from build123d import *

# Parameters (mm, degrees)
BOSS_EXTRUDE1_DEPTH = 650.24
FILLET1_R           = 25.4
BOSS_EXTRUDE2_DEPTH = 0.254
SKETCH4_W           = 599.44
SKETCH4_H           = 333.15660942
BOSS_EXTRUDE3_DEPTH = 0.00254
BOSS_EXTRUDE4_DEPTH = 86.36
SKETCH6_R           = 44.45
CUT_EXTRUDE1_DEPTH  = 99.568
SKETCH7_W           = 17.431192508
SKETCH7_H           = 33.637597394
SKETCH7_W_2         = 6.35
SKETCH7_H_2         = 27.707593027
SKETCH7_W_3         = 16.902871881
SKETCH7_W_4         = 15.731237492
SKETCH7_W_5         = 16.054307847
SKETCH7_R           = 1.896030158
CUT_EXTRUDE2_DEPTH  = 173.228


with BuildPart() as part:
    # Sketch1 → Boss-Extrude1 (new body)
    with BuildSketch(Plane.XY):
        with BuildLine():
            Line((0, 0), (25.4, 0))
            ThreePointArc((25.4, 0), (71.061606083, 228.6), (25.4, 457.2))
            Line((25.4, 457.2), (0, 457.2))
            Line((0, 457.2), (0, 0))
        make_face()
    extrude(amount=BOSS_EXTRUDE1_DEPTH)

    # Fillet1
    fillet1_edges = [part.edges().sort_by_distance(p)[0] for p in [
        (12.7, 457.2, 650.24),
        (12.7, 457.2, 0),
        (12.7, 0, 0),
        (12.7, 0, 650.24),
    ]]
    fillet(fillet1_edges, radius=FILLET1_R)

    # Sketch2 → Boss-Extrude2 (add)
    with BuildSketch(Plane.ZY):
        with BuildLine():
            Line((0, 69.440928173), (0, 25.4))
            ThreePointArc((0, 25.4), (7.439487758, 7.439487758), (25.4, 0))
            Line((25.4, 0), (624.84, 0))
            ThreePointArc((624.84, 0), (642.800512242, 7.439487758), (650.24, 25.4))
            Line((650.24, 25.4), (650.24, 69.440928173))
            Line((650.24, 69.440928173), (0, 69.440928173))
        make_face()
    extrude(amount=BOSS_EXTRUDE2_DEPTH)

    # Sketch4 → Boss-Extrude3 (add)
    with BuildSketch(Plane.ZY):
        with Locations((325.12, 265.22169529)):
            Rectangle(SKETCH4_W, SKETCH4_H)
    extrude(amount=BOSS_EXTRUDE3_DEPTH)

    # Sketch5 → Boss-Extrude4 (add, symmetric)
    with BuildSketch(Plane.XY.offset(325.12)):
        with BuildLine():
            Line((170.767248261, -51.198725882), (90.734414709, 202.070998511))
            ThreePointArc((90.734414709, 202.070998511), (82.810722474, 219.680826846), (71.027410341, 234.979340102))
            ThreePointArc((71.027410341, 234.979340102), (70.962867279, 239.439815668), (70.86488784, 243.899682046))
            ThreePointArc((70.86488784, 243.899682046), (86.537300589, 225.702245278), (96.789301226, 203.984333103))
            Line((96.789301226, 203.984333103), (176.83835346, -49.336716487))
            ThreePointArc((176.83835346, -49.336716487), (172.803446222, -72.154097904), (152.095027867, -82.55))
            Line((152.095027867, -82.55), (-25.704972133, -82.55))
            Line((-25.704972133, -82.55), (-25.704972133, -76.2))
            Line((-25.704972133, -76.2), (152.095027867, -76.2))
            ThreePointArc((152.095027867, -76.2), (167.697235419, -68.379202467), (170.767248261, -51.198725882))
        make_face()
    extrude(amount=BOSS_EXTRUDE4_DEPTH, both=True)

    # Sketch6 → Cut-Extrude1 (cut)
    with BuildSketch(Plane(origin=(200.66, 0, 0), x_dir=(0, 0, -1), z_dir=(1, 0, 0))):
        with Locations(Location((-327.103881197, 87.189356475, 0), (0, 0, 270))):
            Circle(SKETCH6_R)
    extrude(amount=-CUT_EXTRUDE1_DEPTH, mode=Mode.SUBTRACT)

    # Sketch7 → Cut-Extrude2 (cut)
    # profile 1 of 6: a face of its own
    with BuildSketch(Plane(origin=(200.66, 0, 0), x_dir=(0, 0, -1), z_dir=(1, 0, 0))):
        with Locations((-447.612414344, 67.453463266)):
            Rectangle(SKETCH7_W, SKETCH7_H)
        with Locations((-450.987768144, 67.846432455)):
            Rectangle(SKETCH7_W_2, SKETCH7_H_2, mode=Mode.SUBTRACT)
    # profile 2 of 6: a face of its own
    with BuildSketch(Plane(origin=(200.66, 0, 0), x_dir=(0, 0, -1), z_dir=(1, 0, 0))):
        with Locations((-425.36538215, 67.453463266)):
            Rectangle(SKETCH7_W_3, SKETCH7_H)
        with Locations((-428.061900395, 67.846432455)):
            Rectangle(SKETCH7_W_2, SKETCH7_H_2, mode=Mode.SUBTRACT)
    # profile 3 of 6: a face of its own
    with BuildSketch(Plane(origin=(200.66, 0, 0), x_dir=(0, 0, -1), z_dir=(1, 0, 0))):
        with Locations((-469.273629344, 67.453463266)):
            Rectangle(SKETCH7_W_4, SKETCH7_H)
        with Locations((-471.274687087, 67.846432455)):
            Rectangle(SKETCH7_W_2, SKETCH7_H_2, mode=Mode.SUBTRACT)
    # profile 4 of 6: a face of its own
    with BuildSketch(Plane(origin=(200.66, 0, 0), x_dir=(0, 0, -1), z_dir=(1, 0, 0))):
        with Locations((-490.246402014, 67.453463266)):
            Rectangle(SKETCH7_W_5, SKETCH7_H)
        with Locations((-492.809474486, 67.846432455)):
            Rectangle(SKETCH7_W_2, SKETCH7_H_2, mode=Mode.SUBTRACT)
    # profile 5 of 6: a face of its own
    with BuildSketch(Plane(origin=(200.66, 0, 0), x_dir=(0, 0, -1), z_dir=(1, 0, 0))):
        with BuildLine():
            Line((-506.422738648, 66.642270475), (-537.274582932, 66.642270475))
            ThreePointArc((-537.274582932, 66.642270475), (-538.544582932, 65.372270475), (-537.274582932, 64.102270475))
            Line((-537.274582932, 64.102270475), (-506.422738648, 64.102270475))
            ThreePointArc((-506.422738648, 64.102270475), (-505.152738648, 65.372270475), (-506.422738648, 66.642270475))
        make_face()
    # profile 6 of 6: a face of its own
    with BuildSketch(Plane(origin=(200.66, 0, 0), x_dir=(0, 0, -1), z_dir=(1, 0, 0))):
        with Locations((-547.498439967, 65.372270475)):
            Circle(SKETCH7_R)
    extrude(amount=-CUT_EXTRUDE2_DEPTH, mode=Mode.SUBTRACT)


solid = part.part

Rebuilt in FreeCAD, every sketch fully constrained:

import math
import FreeCAD as App
import Part
import Sketcher
Q = App.Units.Quantity


def edges_at(feature, points):
    """Names of the edges that pass closest to the given points."""
    edges = feature.Shape.Edges
    near = lambda p: min(range(len(edges)), key=lambda i: edges[i].distToShape(Part.Vertex(*p))[0])
    return sorted({f"Edge{near(p) + 1}" for p in points})

doc = App.newDocument("Part")
params = doc.addObject("Spreadsheet::Sheet", "Params")
for row, (alias, value) in enumerate([
    ("sketch1_width", "1 in"),
    ("sketch1_height", "18 in"),
    ("pad1_length", "25.6 in"),
    ("fillet_radius", "1 in"),
    ("sketch2_radius", "1 in"),
    ("sketch2_height", "23.6 in"),
    ("pad2_length", "0.01 in"),
    ("sketch3_height", "23.6 in"),
    ("pad3_length", "0.0001 in"),
    ("sketch4_width", "7 in"),
    ("sketch4_height", "0.25 in"),
    ("pad4_length", "6.8 in"),
    ("sketch5_diameter", "3.5 in"),
    ("pocket1_length", "3.92 in"),
    ("sketch6_radius", "0.05 in"),
    ("sketch6_height", "0.25 in"),
    ("pocket2_length", "6.82 in"),
], start=1):
    params.set(f"A{row}", alias)
    params.set(f"B{row}", "=" + value)
    params.setAlias(f"B{row}", alias)

body = doc.addObject("PartDesign::Body", "Body")

# Sketch on XY plane
sketch1 = body.newObject("Sketcher::SketchObject", "Sketch")
sketch1.AttachmentSupport = (doc.getObject("XY_Plane"), [""])
sketch1.MapMode = "FlatFace"
sketch1.addGeometry(Part.LineSegment(App.Vector(0, 0, 0), App.Vector(25.4, 0, 0)), False)
sketch1.addGeometry(Part.ArcOfCircle(Part.Circle(App.Vector(-524.000054, 228.6, 0), App.Vector(0, 0, 1), 595.06166), math.radians(-22.591718), math.radians(22.591718)), False)
sketch1.addGeometry(Part.LineSegment(App.Vector(25.4, 457.2, 0), App.Vector(0, 457.2, 0)), False)
sketch1.addGeometry(Part.LineSegment(App.Vector(0, 457.2, 0), App.Vector(0, 0, 0)), False)
sketch1.addConstraint(Sketcher.Constraint("Coincident", 0, 2, 1, 1))
sketch1.addConstraint(Sketcher.Constraint("Coincident", 1, 2, 2, 1))
sketch1.addConstraint(Sketcher.Constraint("Coincident", 2, 2, 3, 1))
sketch1.addConstraint(Sketcher.Constraint("Coincident", 3, 2, 0, 1))
sketch1.addConstraint(Sketcher.Constraint("Horizontal", 0))
sketch1.addConstraint(Sketcher.Constraint("Horizontal", 2))
sketch1.addConstraint(Sketcher.Constraint("Vertical", 3))
sketch1.addConstraint(Sketcher.Constraint("Coincident", 3, 2, -1, 1))
sketch1.addConstraint(Sketcher.Constraint("Vertical", 0, 2, 1, 2))
sketch1.addConstraint(Sketcher.Constraint("DistanceX", 0, 1, 0, 2, Q("1 in")))
sketch1.addConstraint(Sketcher.Constraint("DistanceY", 3, 2, 3, 1, Q("18 in")))
sketch1.addConstraint(Sketcher.Constraint("Radius", 1, 595.06166))
sketch1.setExpression("Constraints[9]", "Params.sketch1_width")
sketch1.setExpression("Constraints[10]", "Params.sketch1_height")
pad1 = body.newObject("PartDesign::Pad", "Pad")
pad1.Profile = sketch1
pad1.setExpression("Length", "Params.pad1_length")
doc.recompute()

fillet = body.newObject("PartDesign::Fillet", "Fillet")
fillet.Base = (pad1, edges_at(pad1, [
    (12.7, 457.2, 650.24),
    (12.7, 457.2, 0),
    (12.7, 0, 0),
    (12.7, 0, 650.24),
]))
fillet.setExpression("Radius", "Params.fillet_radius")

# Sketch on YZ plane
sketch2 = body.newObject("Sketcher::SketchObject", "Sketch001")
sketch2.AttachmentSupport = (doc.getObject("YZ_Plane"), [""])
sketch2.MapMode = "FlatFace"
sketch2.addGeometry(Part.LineSegment(App.Vector(69, 0, 0), App.Vector(25, 0, 0)), False)
sketch2.addGeometry(Part.ArcOfCircle(Part.Circle(App.Vector(25, 25, 0), App.Vector(0, 0, 1), 25), math.radians(180), math.radians(270)), False)
sketch2.addGeometry(Part.LineSegment(App.Vector(0, 25, 0), App.Vector(0, 625, 0)), False)
sketch2.addGeometry(Part.ArcOfCircle(Part.Circle(App.Vector(25, 625, 0), App.Vector(0, 0, 1), 25), math.radians(90), math.radians(180)), False)
sketch2.addGeometry(Part.LineSegment(App.Vector(25, 650, 0), App.Vector(69, 650, 0)), False)
sketch2.addGeometry(Part.LineSegment(App.Vector(69, 650, 0), App.Vector(69, 0, 0)), False)
sketch2.addConstraint(Sketcher.Constraint("Tangent", 0, 2, 1, 2))
sketch2.addConstraint(Sketcher.Constraint("Tangent", 1, 1, 2, 1))
sketch2.addConstraint(Sketcher.Constraint("Tangent", 2, 2, 3, 2))
sketch2.addConstraint(Sketcher.Constraint("Tangent", 3, 1, 4, 1))
sketch2.addConstraint(Sketcher.Constraint("Coincident", 4, 2, 5, 1))
sketch2.addConstraint(Sketcher.Constraint("Coincident", 5, 2, 0, 1))
sketch2.addConstraint(Sketcher.Constraint("Horizontal", 0))
sketch2.addConstraint(Sketcher.Constraint("Vertical", 2))
sketch2.addConstraint(Sketcher.Constraint("Horizontal", 4))
sketch2.addConstraint(Sketcher.Constraint("Vertical", 5))
sketch2.addConstraint(Sketcher.Constraint("Equal", 1, 3))
sketch2.addConstraint(Sketcher.Constraint("PointOnObject", 0, 2, -1))
sketch2.addConstraint(Sketcher.Constraint("PointOnObject", 1, 1, -2))
sketch2.addConstraint(Sketcher.Constraint("Radius", 1, Q("1 in")))
sketch2.addConstraint(Sketcher.Constraint("DistanceY", 2, 1, 2, 2, Q("23.6 in")))
sketch2.addConstraint(Sketcher.Constraint("DistanceX", 0, 2, 0, 1, 44.040928))
sketch2.setExpression("Constraints[13]", "Params.sketch2_radius")
sketch2.setExpression("Constraints[14]", "Params.sketch2_height")
pad2 = body.newObject("PartDesign::Pad", "Pad001")
pad2.Profile = sketch2
pad2.setExpression("Length", "Params.pad2_length")
pad2.Reversed = True

# Sketch on YZ plane
sketch3 = body.newObject("Sketcher::SketchObject", "Sketch002")
sketch3.AttachmentSupport = (doc.getObject("YZ_Plane"), [""])
sketch3.MapMode = "FlatFace"
sketch3.addGeometry(Part.LineSegment(App.Vector(432, 25, 0), App.Vector(99, 25, 0)), False)
sketch3.addGeometry(Part.LineSegment(App.Vector(99, 25, 0), App.Vector(99, 625, 0)), False)
sketch3.addGeometry(Part.LineSegment(App.Vector(99, 625, 0), App.Vector(432, 625, 0)), False)
sketch3.addGeometry(Part.LineSegment(App.Vector(432, 625, 0), App.Vector(432, 25, 0)), False)
sketch3.addConstraint(Sketcher.Constraint("Coincident", 0, 2, 1, 1))
sketch3.addConstraint(Sketcher.Constraint("Coincident", 1, 2, 2, 1))
sketch3.addConstraint(Sketcher.Constraint("Coincident", 2, 2, 3, 1))
sketch3.addConstraint(Sketcher.Constraint("Coincident", 3, 2, 0, 1))
sketch3.addConstraint(Sketcher.Constraint("Horizontal", 0))
sketch3.addConstraint(Sketcher.Constraint("Vertical", 1))
sketch3.addConstraint(Sketcher.Constraint("Horizontal", 2))
sketch3.addConstraint(Sketcher.Constraint("Vertical", 3))
sketch3.addConstraint(Sketcher.Constraint("DistanceY", 1, 1, 1, 2, Q("23.6 in")))
sketch3.addConstraint(Sketcher.Constraint("DistanceY", -1, 1, 0, 2, Q("1 in")))
sketch3.addConstraint(Sketcher.Constraint("DistanceX", -1, 1, 2, 2, Q("17 in")))
sketch3.addConstraint(Sketcher.Constraint("DistanceX", 0, 2, 0, 1, 333.156609))
sketch3.setExpression("Constraints[8]", "Params.sketch3_height")
pad3 = body.newObject("PartDesign::Pad", "Pad002")
pad3.Profile = sketch3
pad3.setExpression("Length", "Params.pad3_length")
pad3.Reversed = True

# Sketch on XY plane
sketch4 = body.newObject("Sketcher::SketchObject", "Sketch003")
sketch4.AttachmentSupport = (doc.getObject("XY_Plane"), [""])
sketch4.MapMode = "FlatFace"
sketch4.AttachmentOffset = App.Placement(App.Vector(0, 0, 12.8 * 25.4), App.Rotation())
sketch4.addGeometry(Part.LineSegment(App.Vector(91, 202, 0), App.Vector(171, -51, 0)), False)
sketch4.addGeometry(Part.ArcOfCircle(Part.Circle(App.Vector(152, -57, 0), App.Vector(0, 0, 1), 19), math.radians(-90), math.radians(16)), False)
sketch4.addGeometry(Part.LineSegment(App.Vector(152, -76, 0), App.Vector(-26, -76, 0)), False)
sketch4.addGeometry(Part.LineSegment(App.Vector(-26, -76, 0), App.Vector(-26, -83, 0)), False)
sketch4.addGeometry(Part.LineSegment(App.Vector(-26, -83, 0), App.Vector(152, -83, 0)), False)
sketch4.addGeometry(Part.ArcOfCircle(Part.Circle(App.Vector(152, -57, 0), App.Vector(0, 0, 1), 26), math.radians(-90), math.radians(17)), False)
sketch4.addGeometry(Part.LineSegment(App.Vector(177, -49, 0), App.Vector(97, 204, 0)), False)
sketch4.addGeometry(Part.ArcOfCircle(Part.Circle(App.Vector(12, 177, 0), App.Vector(0, 0, 1), 89), math.radians(18), math.radians(48)), False)
sketch4.addGeometry(Part.ArcOfCircle(Part.Circle(App.Vector(-524, 229, 0), App.Vector(0, 0, 1), 595), math.radians(0.61), math.radians(1.47)), False)
sketch4.addGeometry(Part.ArcOfCircle(Part.Circle(App.Vector(12, 177, 0), App.Vector(0, 0, 1), 83), math.radians(18), math.radians(44)), False)
sketch4.addConstraint(Sketcher.Constraint("Coincident", 0, 2, 1, 2))
sketch4.addConstraint(Sketcher.Constraint("Tangent", 1, 1, 2, 1))
sketch4.addConstraint(Sketcher.Constraint("Coincident", 2, 2, 3, 1))
sketch4.addConstraint(Sketcher.Constraint("Coincident", 3, 2, 4, 1))
sketch4.addConstraint(Sketcher.Constraint("Tangent", 4, 2, 5, 1))
sketch4.addConstraint(Sketcher.Constraint("Coincident", 5, 2, 6, 1))
sketch4.addConstraint(Sketcher.Constraint("Tangent", 6, 2, 7, 1))
sketch4.addConstraint(Sketcher.Constraint("Coincident", 7, 2, 8, 2))
sketch4.addConstraint(Sketcher.Constraint("Coincident", 8, 1, 9, 2))
sketch4.addConstraint(Sketcher.Constraint("Tangent", 9, 1, 0, 1))
sketch4.addConstraint(Sketcher.Constraint("Horizontal", 2))
sketch4.addConstraint(Sketcher.Constraint("Vertical", 3))
sketch4.addConstraint(Sketcher.Constraint("Horizontal", 4))
sketch4.addConstraint(Sketcher.Constraint("Coincident", 5, 3, 1, 3))
sketch4.addConstraint(Sketcher.Constraint("Coincident", 9, 3, 7, 3))
sketch4.addConstraint(Sketcher.Constraint("Parallel", 0, 6))
sketch4.addConstraint(Sketcher.Constraint("DistanceX", 2, 2, 2, 1, Q("7 in")))
sketch4.addConstraint(Sketcher.Constraint("DistanceY", -1, 1, 8, 3, Q("9 in")))
sketch4.addConstraint(Sketcher.Constraint("DistanceY", 1, 1, -1, 1, Q("3 in")))
sketch4.addConstraint(Sketcher.Constraint("DistanceY", 3, 2, 3, 1, Q("0.25 in")))
sketch4.addConstraint(Sketcher.Constraint("Radius", 8, 595.061662))
sketch4.addConstraint(Sketcher.Constraint("Radius", 1, 19.473318))
sketch4.addConstraint(Sketcher.Constraint("Radius", 7, 89.237493))
sketch4.addConstraint(Sketcher.Constraint("Radius", 9, 82.887493))
sketch4.addConstraint(Sketcher.Constraint("DistanceX", -1, 1, 6, 2, 96.789301))
sketch4.addConstraint(Sketcher.Constraint("DistanceY", -1, 1, 9, 1, 202.070999))
sketch4.addConstraint(Sketcher.Constraint("Distance", 0, 265.61402))
sketch4.addConstraint(Sketcher.Constraint("DistanceX", -1, 1, 7, 3, 11.699082))
sketch4.addConstraint(Sketcher.Constraint("DistanceX", -1, 1, 8, 1, 71.02741))
sketch4.setExpression("Constraints[16]", "Params.sketch4_width")
sketch4.setExpression("Constraints[19]", "Params.sketch4_height")
pad4 = body.newObject("PartDesign::Pad", "Pad003")
pad4.Profile = sketch4
pad4.setExpression("Length", "Params.pad4_length")
pad4.Midplane = True

# Sketch on YZ plane
sketch5 = body.newObject("Sketcher::SketchObject", "Sketch004")
sketch5.AttachmentSupport = (doc.getObject("YZ_Plane"), [""])
sketch5.MapMode = "FlatFace"
sketch5.AttachmentOffset = App.Placement(App.Vector(0, 0, 7.9 * 25.4), App.Rotation())
sketch5.addGeometry(Part.Circle(App.Vector(87, 327, 0), App.Vector(0, 0, 1), 44), False)
sketch5.addConstraint(Sketcher.Constraint("Diameter", 0, Q("3.5 in")))
sketch5.addConstraint(Sketcher.Constraint("DistanceY", -1, 1, 0, 3, 327.103881))
sketch5.addConstraint(Sketcher.Constraint("DistanceX", -1, 1, 0, 3, 87.189356))
sketch5.setExpression("Constraints[0]", "Params.sketch5_diameter")
pocket1 = body.newObject("PartDesign::Pocket", "Pocket")
pocket1.Profile = sketch5
pocket1.setExpression("Length", "Params.pocket1_length")

# Sketch on YZ plane
sketch6 = body.newObject("Sketcher::SketchObject", "Sketch005")
sketch6.AttachmentSupport = (doc.getObject("YZ_Plane"), [""])
sketch6.MapMode = "FlatFace"
sketch6.AttachmentOffset = App.Placement(App.Vector(0, 0, 7.9 * 25.4), App.Rotation())
sketch6.addGeometry(Part.LineSegment(App.Vector(84.3, 456.3, 0), App.Vector(50.6, 456.3, 0)), False)
sketch6.addGeometry(Part.LineSegment(App.Vector(50.6, 456.3, 0), App.Vector(50.6, 438.9, 0)), False)
sketch6.addGeometry(Part.LineSegment(App.Vector(50.6, 438.9, 0), App.Vector(84.3, 438.9, 0)), False)
sketch6.addGeometry(Part.LineSegment(App.Vector(84.3, 438.9, 0), App.Vector(84.3, 456.3, 0)), False)
sketch6.addGeometry(Part.LineSegment(App.Vector(54, 447.8, 0), App.Vector(54, 454.2, 0)), False)
sketch6.addGeometry(Part.LineSegment(App.Vector(54, 454.2, 0), App.Vector(81.7, 454.2, 0)), False)
sketch6.addGeometry(Part.LineSegment(App.Vector(81.7, 454.2, 0), App.Vector(81.7, 447.8, 0)), False)
sketch6.addGeometry(Part.LineSegment(App.Vector(81.7, 447.8, 0), App.Vector(54, 447.8, 0)), False)
sketch6.addGeometry(Part.LineSegment(App.Vector(84.3, 433.8, 0), App.Vector(50.6, 433.8, 0)), False)
sketch6.addGeometry(Part.LineSegment(App.Vector(50.6, 433.8, 0), App.Vector(50.6, 416.9, 0)), False)
sketch6.addGeometry(Part.LineSegment(App.Vector(50.6, 416.9, 0), App.Vector(84.3, 416.9, 0)), False)
sketch6.addGeometry(Part.LineSegment(App.Vector(84.3, 416.9, 0), App.Vector(84.3, 433.8, 0)), False)
sketch6.addGeometry(Part.LineSegment(App.Vector(54, 424.9, 0), App.Vector(54, 431.2, 0)), False)
sketch6.addGeometry(Part.LineSegment(App.Vector(54, 431.2, 0), App.Vector(81.7, 431.2, 0)), False)
sketch6.addGeometry(Part.LineSegment(App.Vector(81.7, 431.2, 0), App.Vector(81.7, 424.9, 0)), False)
sketch6.addGeometry(Part.LineSegment(App.Vector(81.7, 424.9, 0), App.Vector(54, 424.9, 0)), False)
sketch6.addGeometry(Part.LineSegment(App.Vector(84.3, 477.1, 0), App.Vector(50.6, 477.1, 0)), False)
sketch6.addGeometry(Part.LineSegment(App.Vector(50.6, 477.1, 0), App.Vector(50.6, 461.4, 0)), False)
sketch6.addGeometry(Part.LineSegment(App.Vector(50.6, 461.4, 0), App.Vector(84.3, 461.4, 0)), False)
sketch6.addGeometry(Part.LineSegment(App.Vector(84.3, 461.4, 0), App.Vector(84.3, 477.1, 0)), False)
sketch6.addGeometry(Part.LineSegment(App.Vector(54, 468.1, 0), App.Vector(54, 474.4, 0)), False)
sketch6.addGeometry(Part.LineSegment(App.Vector(54, 474.4, 0), App.Vector(81.7, 474.4, 0)), False)
sketch6.addGeometry(Part.LineSegment(App.Vector(81.7, 474.4, 0), App.Vector(81.7, 468.1, 0)), False)
sketch6.addGeometry(Part.LineSegment(App.Vector(81.7, 468.1, 0), App.Vector(54, 468.1, 0)), False)
sketch6.addGeometry(Part.LineSegment(App.Vector(84.3, 498.3, 0), App.Vector(50.6, 498.3, 0)), False)
sketch6.addGeometry(Part.LineSegment(App.Vector(50.6, 498.3, 0), App.Vector(50.6, 482.2, 0)), False)
sketch6.addGeometry(Part.LineSegment(App.Vector(50.6, 482.2, 0), App.Vector(84.3, 482.2, 0)), False)
sketch6.addGeometry(Part.LineSegment(App.Vector(84.3, 482.2, 0), App.Vector(84.3, 498.3, 0)), False)
sketch6.addGeometry(Part.LineSegment(App.Vector(54, 489.6, 0), App.Vector(54, 496, 0)), False)
sketch6.addGeometry(Part.LineSegment(App.Vector(54, 496, 0), App.Vector(81.7, 496, 0)), False)
sketch6.addGeometry(Part.LineSegment(App.Vector(81.7, 496, 0), App.Vector(81.7, 489.6, 0)), False)
sketch6.addGeometry(Part.LineSegment(App.Vector(81.7, 489.6, 0), App.Vector(54, 489.6, 0)), False)
sketch6.addGeometry(Part.LineSegment(App.Vector(66.6, 506.4, 0), App.Vector(66.6, 537.3, 0)), False)
sketch6.addGeometry(Part.ArcOfCircle(Part.Circle(App.Vector(65.4, 537.3, 0), App.Vector(0, 0, 1), 1.3), math.radians(0), math.radians(180)), False)
sketch6.addGeometry(Part.LineSegment(App.Vector(64.1, 537.3, 0), App.Vector(64.1, 506.4, 0)), False)
sketch6.addGeometry(Part.ArcOfCircle(Part.Circle(App.Vector(65.4, 506.4, 0), App.Vector(0, 0, 1), 1.3), math.radians(180), math.radians(360)), False)
sketch6.addGeometry(Part.Circle(App.Vector(65.4, 547.5, 0), App.Vector(0, 0, 1), 1.9), False)
sketch6.addConstraint(Sketcher.Constraint("Coincident", 0, 2, 1, 1))
sketch6.addConstraint(Sketcher.Constraint("Coincident", 1, 2, 2, 1))
sketch6.addConstraint(Sketcher.Constraint("Coincident", 2, 2, 3, 1))
sketch6.addConstraint(Sketcher.Constraint("Coincident", 3, 2, 0, 1))
sketch6.addConstraint(Sketcher.Constraint("Coincident", 4, 2, 5, 1))
sketch6.addConstraint(Sketcher.Constraint("Coincident", 5, 2, 6, 1))
sketch6.addConstraint(Sketcher.Constraint("Coincident", 6, 2, 7, 1))
sketch6.addConstraint(Sketcher.Constraint("Coincident", 7, 2, 4, 1))
sketch6.addConstraint(Sketcher.Constraint("Coincident", 8, 2, 9, 1))
sketch6.addConstraint(Sketcher.Constraint("Coincident", 9, 2, 10, 1))
sketch6.addConstraint(Sketcher.Constraint("Coincident", 10, 2, 11, 1))
sketch6.addConstraint(Sketcher.Constraint("Coincident", 11, 2, 8, 1))
sketch6.addConstraint(Sketcher.Constraint("Coincident", 12, 2, 13, 1))
sketch6.addConstraint(Sketcher.Constraint("Coincident", 13, 2, 14, 1))
sketch6.addConstraint(Sketcher.Constraint("Coincident", 14, 2, 15, 1))
sketch6.addConstraint(Sketcher.Constraint("Coincident", 15, 2, 12, 1))
sketch6.addConstraint(Sketcher.Constraint("Coincident", 16, 2, 17, 1))
sketch6.addConstraint(Sketcher.Constraint("Coincident", 17, 2, 18, 1))
sketch6.addConstraint(Sketcher.Constraint("Coincident", 18, 2, 19, 1))
sketch6.addConstraint(Sketcher.Constraint("Coincident", 19, 2, 16, 1))
sketch6.addConstraint(Sketcher.Constraint("Coincident", 20, 2, 21, 1))
sketch6.addConstraint(Sketcher.Constraint("Coincident", 21, 2, 22, 1))
sketch6.addConstraint(Sketcher.Constraint("Coincident", 22, 2, 23, 1))
sketch6.addConstraint(Sketcher.Constraint("Coincident", 23, 2, 20, 1))
sketch6.addConstraint(Sketcher.Constraint("Coincident", 24, 2, 25, 1))
sketch6.addConstraint(Sketcher.Constraint("Coincident", 25, 2, 26, 1))
sketch6.addConstraint(Sketcher.Constraint("Coincident", 26, 2, 27, 1))
sketch6.addConstraint(Sketcher.Constraint("Coincident", 27, 2, 24, 1))
sketch6.addConstraint(Sketcher.Constraint("Coincident", 28, 2, 29, 1))
sketch6.addConstraint(Sketcher.Constraint("Coincident", 29, 2, 30, 1))
sketch6.addConstraint(Sketcher.Constraint("Coincident", 30, 2, 31, 1))
sketch6.addConstraint(Sketcher.Constraint("Coincident", 31, 2, 28, 1))
sketch6.addConstraint(Sketcher.Constraint("Tangent", 32, 2, 33, 1))
sketch6.addConstraint(Sketcher.Constraint("Tangent", 33, 2, 34, 1))
sketch6.addConstraint(Sketcher.Constraint("Tangent", 34, 2, 35, 1))
sketch6.addConstraint(Sketcher.Constraint("Tangent", 35, 2, 32, 1))
sketch6.addConstraint(Sketcher.Constraint("Horizontal", 0))
sketch6.addConstraint(Sketcher.Constraint("Vertical", 1))
sketch6.addConstraint(Sketcher.Constraint("Horizontal", 2))
sketch6.addConstraint(Sketcher.Constraint("Vertical", 3))
sketch6.addConstraint(Sketcher.Constraint("Vertical", 4))
sketch6.addConstraint(Sketcher.Constraint("Horizontal", 5))
sketch6.addConstraint(Sketcher.Constraint("Vertical", 6))
sketch6.addConstraint(Sketcher.Constraint("Horizontal", 7))
sketch6.addConstraint(Sketcher.Constraint("Horizontal", 8))
sketch6.addConstraint(Sketcher.Constraint("Vertical", 9))
sketch6.addConstraint(Sketcher.Constraint("Horizontal", 10))
sketch6.addConstraint(Sketcher.Constraint("Vertical", 11))
sketch6.addConstraint(Sketcher.Constraint("Vertical", 12))
sketch6.addConstraint(Sketcher.Constraint("Horizontal", 13))
sketch6.addConstraint(Sketcher.Constraint("Vertical", 14))
sketch6.addConstraint(Sketcher.Constraint("Horizontal", 15))
sketch6.addConstraint(Sketcher.Constraint("Horizontal", 16))
sketch6.addConstraint(Sketcher.Constraint("Vertical", 17))
sketch6.addConstraint(Sketcher.Constraint("Horizontal", 18))
sketch6.addConstraint(Sketcher.Constraint("Vertical", 19))
sketch6.addConstraint(Sketcher.Constraint("Vertical", 20))
sketch6.addConstraint(Sketcher.Constraint("Horizontal", 21))
sketch6.addConstraint(Sketcher.Constraint("Vertical", 22))
sketch6.addConstraint(Sketcher.Constraint("Horizontal", 23))
sketch6.addConstraint(Sketcher.Constraint("Horizontal", 24))
sketch6.addConstraint(Sketcher.Constraint("Vertical", 25))
sketch6.addConstraint(Sketcher.Constraint("Horizontal", 26))
sketch6.addConstraint(Sketcher.Constraint("Vertical", 27))
sketch6.addConstraint(Sketcher.Constraint("Vertical", 28))
sketch6.addConstraint(Sketcher.Constraint("Horizontal", 29))
sketch6.addConstraint(Sketcher.Constraint("Vertical", 30))
sketch6.addConstraint(Sketcher.Constraint("Horizontal", 31))
sketch6.addConstraint(Sketcher.Constraint("Vertical", 32))
sketch6.addConstraint(Sketcher.Constraint("Vertical", 34))
sketch6.addConstraint(Sketcher.Constraint("Vertical", 35, 3, 36, 3))
sketch6.addConstraint(Sketcher.Constraint("Vertical", 1, 2, 8, 2))
sketch6.addConstraint(Sketcher.Constraint("Vertical", 3, 2, 10, 2))
sketch6.addConstraint(Sketcher.Constraint("Vertical", 7, 2, 12, 2))
sketch6.addConstraint(Sketcher.Constraint("Vertical", 6, 2, 13, 2))
sketch6.addConstraint(Sketcher.Constraint("Vertical", 9, 2, 16, 2))
sketch6.addConstraint(Sketcher.Constraint("Vertical", 11, 2, 18, 2))
sketch6.addConstraint(Sketcher.Constraint("Vertical", 15, 2, 20, 2))
sketch6.addConstraint(Sketcher.Constraint("Vertical", 14, 2, 21, 2))
sketch6.addConstraint(Sketcher.Constraint("Vertical", 17, 2, 24, 2))
sketch6.addConstraint(Sketcher.Constraint("Vertical", 19, 2, 26, 2))
sketch6.addConstraint(Sketcher.Constraint("Vertical", 23, 2, 28, 2))
sketch6.addConstraint(Sketcher.Constraint("Vertical", 22, 2, 29, 2))
sketch6.addConstraint(Sketcher.Constraint("Equal", 6, 12))
sketch6.addConstraint(Sketcher.Constraint("Equal", 14, 20))
sketch6.addConstraint(Sketcher.Constraint("Equal", 22, 28))
sketch6.addConstraint(Sketcher.Constraint("Radius", 33, Q("0.05 in")))
sketch6.addConstraint(Sketcher.Constraint("DistanceY", 4, 1, 4, 2, Q("0.25 in")))
sketch6.addConstraint(Sketcher.Constraint("DistanceY", 8, 2, 1, 2, Q("0.2 in")))
sketch6.addConstraint(Sketcher.Constraint("DistanceY", 0, 2, 17, 2, Q("0.2 in")))
sketch6.addConstraint(Sketcher.Constraint("DistanceY", 16, 2, 25, 2, Q("0.2 in")))
sketch6.addConstraint(Sketcher.Constraint("Diameter", 36, 3.79206))
sketch6.addConstraint(Sketcher.Constraint("DistanceY", 9, 2, 9, 1, 16.902872))
sketch6.addConstraint(Sketcher.Constraint("DistanceY", -1, 1, 12, 2, 431.2369))
sketch6.addConstraint(Sketcher.Constraint("DistanceY", 35, 3, 36, 3, 41.075701))
sketch6.addConstraint(Sketcher.Constraint("DistanceX", 0, 2, 0, 1, 33.637597))
sketch6.addConstraint(Sketcher.Constraint("DistanceX", 5, 1, 5, 2, 27.707593))
sketch6.addConstraint(Sketcher.Constraint("DistanceY", 1, 2, 1, 1, 17.431193))
sketch6.addConstraint(Sketcher.Constraint("DistanceY", 17, 2, 17, 1, 15.731237))
sketch6.addConstraint(Sketcher.Constraint("DistanceY", 25, 2, 25, 1, 16.054308))
sketch6.addConstraint(Sketcher.Constraint("DistanceY", 32, 1, 32, 2, 30.851844))
sketch6.addConstraint(Sketcher.Constraint("DistanceX", -1, 1, 33, 3, 65.37227))
sketch6.addConstraint(Sketcher.Constraint("DistanceY", -1, 1, 35, 3, 506.422739))
sketch6.addConstraint(Sketcher.Constraint("DistanceY", -1, 1, 0, 2, 456.328011))
sketch6.addConstraint(Sketcher.Constraint("DistanceX", -1, 1, 2, 2, 84.272262))
sketch6.addConstraint(Sketcher.Constraint("DistanceY", -1, 1, 4, 2, 454.162768))
sketch6.addConstraint(Sketcher.Constraint("DistanceX", -1, 1, 5, 2, 81.700229))
sketch6.addConstraint(Sketcher.Constraint("DistanceY", 20, 2, 16, 2, 2.689561))
sketch6.addConstraint(Sketcher.Constraint("DistanceY", 28, 2, 24, 2, 2.289081))
sketch6.setExpression("Constraints[86]", "Params.sketch6_radius")
sketch6.setExpression("Constraints[87]", "Params.sketch6_height")
pocket2 = body.newObject("PartDesign::Pocket", "Pocket001")
pocket2.Profile = sketch6
pocket2.setExpression("Length", "Params.pocket2_length")

doc.recompute()
